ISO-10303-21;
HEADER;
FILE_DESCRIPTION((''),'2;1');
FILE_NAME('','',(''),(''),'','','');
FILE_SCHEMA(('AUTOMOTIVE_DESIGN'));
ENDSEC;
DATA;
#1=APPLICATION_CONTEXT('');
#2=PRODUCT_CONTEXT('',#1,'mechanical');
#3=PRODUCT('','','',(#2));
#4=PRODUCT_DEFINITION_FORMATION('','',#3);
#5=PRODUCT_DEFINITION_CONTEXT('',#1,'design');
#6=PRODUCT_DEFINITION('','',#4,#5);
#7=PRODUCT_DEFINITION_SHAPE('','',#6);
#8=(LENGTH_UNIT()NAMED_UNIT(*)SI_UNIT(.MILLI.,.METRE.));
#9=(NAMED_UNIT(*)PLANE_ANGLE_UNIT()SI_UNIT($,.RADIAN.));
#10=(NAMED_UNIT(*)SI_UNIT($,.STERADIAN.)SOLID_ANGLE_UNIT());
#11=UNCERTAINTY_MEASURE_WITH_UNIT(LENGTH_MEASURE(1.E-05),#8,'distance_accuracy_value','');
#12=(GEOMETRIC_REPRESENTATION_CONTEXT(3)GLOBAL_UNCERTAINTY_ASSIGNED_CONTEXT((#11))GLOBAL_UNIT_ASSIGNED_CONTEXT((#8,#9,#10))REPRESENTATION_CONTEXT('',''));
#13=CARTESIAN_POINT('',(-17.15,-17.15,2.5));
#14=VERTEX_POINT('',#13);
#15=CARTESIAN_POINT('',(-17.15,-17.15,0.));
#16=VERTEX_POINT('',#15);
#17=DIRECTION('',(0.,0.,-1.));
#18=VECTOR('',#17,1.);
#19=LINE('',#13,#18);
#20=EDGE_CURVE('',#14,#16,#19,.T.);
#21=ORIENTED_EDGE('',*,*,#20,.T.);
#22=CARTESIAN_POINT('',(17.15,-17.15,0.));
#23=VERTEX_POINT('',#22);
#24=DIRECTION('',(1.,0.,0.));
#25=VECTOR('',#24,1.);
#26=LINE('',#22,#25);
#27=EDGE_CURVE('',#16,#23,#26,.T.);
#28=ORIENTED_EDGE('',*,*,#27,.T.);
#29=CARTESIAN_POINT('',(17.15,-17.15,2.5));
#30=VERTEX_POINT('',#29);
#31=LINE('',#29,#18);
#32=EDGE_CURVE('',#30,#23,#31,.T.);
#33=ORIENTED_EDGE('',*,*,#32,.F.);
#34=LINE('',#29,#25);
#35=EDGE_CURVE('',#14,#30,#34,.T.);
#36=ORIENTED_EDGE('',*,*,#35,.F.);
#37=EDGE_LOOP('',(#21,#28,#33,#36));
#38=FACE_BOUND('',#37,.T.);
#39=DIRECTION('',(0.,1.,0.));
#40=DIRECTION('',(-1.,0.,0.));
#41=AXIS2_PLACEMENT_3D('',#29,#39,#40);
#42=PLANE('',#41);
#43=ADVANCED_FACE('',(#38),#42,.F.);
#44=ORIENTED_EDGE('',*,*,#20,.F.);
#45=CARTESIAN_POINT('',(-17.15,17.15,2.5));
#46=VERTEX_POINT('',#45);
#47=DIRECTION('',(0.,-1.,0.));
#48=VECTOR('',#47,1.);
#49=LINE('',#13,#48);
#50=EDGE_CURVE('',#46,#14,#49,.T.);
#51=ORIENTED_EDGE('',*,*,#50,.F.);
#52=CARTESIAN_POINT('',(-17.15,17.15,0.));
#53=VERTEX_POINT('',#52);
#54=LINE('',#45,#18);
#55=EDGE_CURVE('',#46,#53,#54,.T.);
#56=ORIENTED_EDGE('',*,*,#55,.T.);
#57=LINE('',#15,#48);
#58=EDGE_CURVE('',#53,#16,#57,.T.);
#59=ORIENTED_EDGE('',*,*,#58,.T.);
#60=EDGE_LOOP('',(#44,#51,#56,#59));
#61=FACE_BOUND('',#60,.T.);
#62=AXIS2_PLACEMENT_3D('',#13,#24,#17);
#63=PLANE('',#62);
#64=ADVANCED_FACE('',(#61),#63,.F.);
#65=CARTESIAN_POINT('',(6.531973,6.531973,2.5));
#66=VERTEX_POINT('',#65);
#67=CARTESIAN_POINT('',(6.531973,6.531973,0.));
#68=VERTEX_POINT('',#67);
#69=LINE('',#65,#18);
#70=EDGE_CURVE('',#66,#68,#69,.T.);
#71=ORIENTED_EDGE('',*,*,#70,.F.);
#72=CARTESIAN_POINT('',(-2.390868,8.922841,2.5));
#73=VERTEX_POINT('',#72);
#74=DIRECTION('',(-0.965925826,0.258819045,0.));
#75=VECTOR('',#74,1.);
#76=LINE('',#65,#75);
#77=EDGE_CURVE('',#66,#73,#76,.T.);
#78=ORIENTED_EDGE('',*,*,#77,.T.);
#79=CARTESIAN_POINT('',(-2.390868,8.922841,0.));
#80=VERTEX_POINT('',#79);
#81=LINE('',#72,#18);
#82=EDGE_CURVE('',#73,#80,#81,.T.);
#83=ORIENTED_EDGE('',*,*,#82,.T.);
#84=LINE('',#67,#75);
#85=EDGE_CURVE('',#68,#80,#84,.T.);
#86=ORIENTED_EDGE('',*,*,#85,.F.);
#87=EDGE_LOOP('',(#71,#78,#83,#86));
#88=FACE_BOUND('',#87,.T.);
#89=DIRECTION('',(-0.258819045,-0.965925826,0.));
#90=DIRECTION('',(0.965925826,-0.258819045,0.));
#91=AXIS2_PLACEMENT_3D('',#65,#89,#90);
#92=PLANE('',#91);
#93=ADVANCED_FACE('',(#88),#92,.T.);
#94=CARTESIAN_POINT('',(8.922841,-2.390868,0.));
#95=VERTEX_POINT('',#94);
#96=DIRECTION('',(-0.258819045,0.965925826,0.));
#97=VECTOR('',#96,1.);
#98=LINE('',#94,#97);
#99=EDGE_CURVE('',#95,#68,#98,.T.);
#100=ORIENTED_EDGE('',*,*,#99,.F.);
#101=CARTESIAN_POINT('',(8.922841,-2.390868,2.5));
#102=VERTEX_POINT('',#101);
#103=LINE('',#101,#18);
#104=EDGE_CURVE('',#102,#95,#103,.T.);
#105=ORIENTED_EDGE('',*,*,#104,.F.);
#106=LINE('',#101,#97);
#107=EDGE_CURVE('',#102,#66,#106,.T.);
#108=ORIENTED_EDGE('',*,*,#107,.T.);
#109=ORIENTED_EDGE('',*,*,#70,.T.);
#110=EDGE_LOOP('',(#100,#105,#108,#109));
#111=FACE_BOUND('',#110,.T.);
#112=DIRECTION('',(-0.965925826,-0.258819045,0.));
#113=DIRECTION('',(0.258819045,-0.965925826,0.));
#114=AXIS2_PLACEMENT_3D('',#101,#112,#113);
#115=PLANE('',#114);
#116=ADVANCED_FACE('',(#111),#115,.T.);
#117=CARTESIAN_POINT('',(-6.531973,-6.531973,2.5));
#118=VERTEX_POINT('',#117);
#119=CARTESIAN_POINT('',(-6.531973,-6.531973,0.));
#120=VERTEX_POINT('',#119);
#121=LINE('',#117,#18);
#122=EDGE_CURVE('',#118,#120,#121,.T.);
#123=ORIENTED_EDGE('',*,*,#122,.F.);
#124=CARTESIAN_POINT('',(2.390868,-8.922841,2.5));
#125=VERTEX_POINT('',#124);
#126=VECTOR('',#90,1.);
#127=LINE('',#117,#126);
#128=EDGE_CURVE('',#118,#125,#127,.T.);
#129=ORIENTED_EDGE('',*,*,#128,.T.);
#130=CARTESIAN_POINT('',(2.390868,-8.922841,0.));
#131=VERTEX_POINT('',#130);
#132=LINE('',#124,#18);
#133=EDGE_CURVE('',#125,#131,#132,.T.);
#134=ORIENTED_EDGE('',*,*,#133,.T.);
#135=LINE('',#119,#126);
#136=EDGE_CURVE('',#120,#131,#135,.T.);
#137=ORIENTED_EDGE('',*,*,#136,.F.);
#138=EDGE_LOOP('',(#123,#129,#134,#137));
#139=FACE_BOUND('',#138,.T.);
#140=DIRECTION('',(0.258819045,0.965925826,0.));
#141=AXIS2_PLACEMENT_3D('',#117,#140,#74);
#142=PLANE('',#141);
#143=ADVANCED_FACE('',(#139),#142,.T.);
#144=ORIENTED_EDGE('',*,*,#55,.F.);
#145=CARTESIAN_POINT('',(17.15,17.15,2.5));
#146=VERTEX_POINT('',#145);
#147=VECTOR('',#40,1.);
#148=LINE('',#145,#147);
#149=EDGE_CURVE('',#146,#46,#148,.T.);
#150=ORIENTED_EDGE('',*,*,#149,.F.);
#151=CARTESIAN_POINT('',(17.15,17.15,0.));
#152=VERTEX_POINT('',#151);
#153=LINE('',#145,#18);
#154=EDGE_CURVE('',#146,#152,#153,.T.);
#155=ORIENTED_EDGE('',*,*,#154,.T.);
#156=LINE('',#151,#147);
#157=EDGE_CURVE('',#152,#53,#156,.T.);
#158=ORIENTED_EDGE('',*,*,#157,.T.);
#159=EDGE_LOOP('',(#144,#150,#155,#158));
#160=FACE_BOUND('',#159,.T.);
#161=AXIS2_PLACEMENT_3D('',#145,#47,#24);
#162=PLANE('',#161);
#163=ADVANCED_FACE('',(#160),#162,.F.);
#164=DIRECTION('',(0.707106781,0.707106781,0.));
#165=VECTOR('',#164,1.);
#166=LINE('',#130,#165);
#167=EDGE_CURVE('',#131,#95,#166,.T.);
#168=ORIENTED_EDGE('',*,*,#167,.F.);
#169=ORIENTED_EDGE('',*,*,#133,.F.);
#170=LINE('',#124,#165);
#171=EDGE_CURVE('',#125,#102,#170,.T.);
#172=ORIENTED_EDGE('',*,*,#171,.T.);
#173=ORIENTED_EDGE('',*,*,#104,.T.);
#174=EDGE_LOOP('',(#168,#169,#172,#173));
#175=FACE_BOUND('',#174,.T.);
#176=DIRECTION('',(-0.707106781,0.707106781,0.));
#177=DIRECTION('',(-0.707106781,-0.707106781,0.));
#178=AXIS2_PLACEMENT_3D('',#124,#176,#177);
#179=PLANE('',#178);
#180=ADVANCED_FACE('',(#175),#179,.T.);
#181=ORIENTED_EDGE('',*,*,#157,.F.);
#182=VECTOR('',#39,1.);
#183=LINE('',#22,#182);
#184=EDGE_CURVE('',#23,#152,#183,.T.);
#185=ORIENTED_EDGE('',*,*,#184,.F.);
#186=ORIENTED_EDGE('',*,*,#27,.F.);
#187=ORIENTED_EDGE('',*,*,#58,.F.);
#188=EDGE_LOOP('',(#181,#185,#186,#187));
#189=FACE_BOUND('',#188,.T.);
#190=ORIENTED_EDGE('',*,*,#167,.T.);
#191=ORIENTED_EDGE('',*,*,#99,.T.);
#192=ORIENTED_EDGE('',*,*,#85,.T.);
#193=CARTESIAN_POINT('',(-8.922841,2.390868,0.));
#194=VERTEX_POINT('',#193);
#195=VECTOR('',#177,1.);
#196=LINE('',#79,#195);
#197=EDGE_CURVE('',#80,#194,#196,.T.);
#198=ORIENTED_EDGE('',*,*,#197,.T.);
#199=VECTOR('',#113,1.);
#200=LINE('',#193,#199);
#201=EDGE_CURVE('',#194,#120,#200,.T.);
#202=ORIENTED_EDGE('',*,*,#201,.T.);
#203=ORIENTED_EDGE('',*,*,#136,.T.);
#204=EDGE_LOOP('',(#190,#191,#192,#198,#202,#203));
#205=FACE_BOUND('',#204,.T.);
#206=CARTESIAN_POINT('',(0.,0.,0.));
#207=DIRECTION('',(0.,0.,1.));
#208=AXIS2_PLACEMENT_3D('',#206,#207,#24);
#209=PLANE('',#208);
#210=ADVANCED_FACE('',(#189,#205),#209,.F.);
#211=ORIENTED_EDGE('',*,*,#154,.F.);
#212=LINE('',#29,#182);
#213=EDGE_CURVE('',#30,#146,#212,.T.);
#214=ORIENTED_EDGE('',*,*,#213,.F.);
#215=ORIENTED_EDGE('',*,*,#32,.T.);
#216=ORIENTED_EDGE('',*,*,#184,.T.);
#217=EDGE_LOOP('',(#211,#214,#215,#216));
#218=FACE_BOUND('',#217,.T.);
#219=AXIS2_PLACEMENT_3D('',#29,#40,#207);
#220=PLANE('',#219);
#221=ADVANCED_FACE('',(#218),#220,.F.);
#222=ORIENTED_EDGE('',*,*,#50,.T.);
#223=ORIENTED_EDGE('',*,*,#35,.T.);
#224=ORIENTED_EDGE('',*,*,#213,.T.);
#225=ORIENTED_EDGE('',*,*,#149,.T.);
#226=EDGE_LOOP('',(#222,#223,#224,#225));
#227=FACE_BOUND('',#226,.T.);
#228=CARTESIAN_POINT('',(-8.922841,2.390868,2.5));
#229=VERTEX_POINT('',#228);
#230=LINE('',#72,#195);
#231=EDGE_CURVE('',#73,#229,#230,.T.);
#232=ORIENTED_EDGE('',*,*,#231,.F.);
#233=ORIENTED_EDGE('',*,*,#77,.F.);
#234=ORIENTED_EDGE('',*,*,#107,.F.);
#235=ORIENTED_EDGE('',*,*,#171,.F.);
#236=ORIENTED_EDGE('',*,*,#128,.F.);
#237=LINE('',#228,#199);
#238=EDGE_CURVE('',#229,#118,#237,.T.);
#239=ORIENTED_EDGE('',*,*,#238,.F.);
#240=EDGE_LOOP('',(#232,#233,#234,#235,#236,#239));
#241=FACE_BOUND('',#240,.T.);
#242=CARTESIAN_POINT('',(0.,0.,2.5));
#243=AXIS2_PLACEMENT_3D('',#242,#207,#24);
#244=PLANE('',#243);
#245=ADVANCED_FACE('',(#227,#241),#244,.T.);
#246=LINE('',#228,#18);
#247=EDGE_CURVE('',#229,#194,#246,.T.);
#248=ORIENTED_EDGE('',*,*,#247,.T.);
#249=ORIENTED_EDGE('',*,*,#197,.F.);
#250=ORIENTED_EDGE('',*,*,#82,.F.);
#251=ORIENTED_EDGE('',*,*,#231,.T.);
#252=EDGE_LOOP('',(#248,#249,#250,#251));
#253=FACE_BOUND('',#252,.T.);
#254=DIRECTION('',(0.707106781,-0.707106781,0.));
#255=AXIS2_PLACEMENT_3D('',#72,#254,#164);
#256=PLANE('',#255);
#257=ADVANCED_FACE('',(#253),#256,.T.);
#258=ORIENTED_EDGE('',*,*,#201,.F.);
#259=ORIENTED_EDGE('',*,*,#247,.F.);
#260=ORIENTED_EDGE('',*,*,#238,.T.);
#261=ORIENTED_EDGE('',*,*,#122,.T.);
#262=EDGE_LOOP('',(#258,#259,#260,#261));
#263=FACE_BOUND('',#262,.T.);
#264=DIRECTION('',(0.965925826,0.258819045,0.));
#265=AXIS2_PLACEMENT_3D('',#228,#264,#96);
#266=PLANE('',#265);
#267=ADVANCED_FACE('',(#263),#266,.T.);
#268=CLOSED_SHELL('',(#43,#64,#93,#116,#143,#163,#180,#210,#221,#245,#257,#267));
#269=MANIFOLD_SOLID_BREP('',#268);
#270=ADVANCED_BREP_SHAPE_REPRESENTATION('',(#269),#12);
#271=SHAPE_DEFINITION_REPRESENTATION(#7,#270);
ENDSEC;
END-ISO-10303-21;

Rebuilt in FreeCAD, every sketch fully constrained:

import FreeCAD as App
import Part
import Sketcher

V = App.Vector
Q = App.Units.Quantity


def add_polygon(sketch, points):
    """Adds a closed chain of lines whose ends are joined by coincident constraints."""
    first, n = sketch.GeometryCount, len(points)
    for a, b in zip(points, points[1:] + points[:1]):
        sketch.addGeometry(Part.LineSegment(App.Vector(*a, 0), App.Vector(*b, 0)), False)
    for i in range(n):
        sketch.addConstraint(Sketcher.Constraint("Coincident", first + i, 2, first + (i + 1) % n, 1))

doc = App.newDocument("Part")
params = doc.addObject("Spreadsheet::Sheet", "Params")
for row, (alias, value) in enumerate([
    ("sketch1_width", "34.3 mm"),
    ("pad1_length", "2.5 mm"),
], start=1):
    params.set(f"A{row}", alias)
    params.set(f"B{row}", "=" + value)
    params.setAlias(f"B{row}", alias)

body = doc.addObject("PartDesign::Body", "Body")

sketch1 = body.newObject("Sketcher::SketchObject", "Sketch")
sketch1.AttachmentSupport = (doc.getObject("XY_Plane"), [""])
sketch1.MapMode = "FlatFace"
add_polygon(sketch1, [(-17, 17), (-17, -17), (17, -17), (17, 17)])
add_polygon(sketch1, [(-2, 9), (7, 7), (9, -2), (2, -9), (-7, -7), (-9, 2)])
sketch1.addConstraint(Sketcher.Constraint("Vertical", 0))
sketch1.addConstraint(Sketcher.Constraint("Horizontal", 1))
sketch1.addConstraint(Sketcher.Constraint("Vertical", 2))
sketch1.addConstraint(Sketcher.Constraint("Horizontal", 3))
sketch1.addConstraint(Sketcher.Constraint("Symmetric", 0, 2, 2, 2, -1, 1))
sketch1.addConstraint(Sketcher.Constraint("Symmetric", 4, 2, 7, 2, -1, 1))
sketch1.addConstraint(Sketcher.Constraint("Symmetric", 5, 2, 8, 2, -1, 1))
sketch1.addConstraint(Sketcher.Constraint("Symmetric", 6, 2, 9, 2, -1, 1))
sketch1.addConstraint(Sketcher.Constraint("Equal", 3, 0))
sketch1.addConstraint(Sketcher.Constraint("Equal", 4, 5))
sketch1.addConstraint(Sketcher.Constraint("Equal", 5, 6))
sketch1.addConstraint(Sketcher.Constraint("Angle", 4, Q("-15 deg")))
sketch1.addConstraint(Sketcher.Constraint("Angle", 5, Q("-75 deg")))
sketch1.addConstraint(Sketcher.Constraint("Angle", 6, Q("-135 deg")))
sketch1.addConstraint(Sketcher.Constraint("DistanceX", 1, 1, 1, 2, Q("34.3 mm")))
sketch1.addConstraint(Sketcher.Constraint("DistanceX", -1, 1, 5, 2, Q("8.922841 mm")))
sketch1.setExpression("Constraints[24]", "Params.sketch1_width")
pad1 = body.newObject("PartDesign::Pad", "Pad")
pad1.Profile = sketch1
pad1.setExpression("Length", "Params.pad1_length")

doc.recompute()
